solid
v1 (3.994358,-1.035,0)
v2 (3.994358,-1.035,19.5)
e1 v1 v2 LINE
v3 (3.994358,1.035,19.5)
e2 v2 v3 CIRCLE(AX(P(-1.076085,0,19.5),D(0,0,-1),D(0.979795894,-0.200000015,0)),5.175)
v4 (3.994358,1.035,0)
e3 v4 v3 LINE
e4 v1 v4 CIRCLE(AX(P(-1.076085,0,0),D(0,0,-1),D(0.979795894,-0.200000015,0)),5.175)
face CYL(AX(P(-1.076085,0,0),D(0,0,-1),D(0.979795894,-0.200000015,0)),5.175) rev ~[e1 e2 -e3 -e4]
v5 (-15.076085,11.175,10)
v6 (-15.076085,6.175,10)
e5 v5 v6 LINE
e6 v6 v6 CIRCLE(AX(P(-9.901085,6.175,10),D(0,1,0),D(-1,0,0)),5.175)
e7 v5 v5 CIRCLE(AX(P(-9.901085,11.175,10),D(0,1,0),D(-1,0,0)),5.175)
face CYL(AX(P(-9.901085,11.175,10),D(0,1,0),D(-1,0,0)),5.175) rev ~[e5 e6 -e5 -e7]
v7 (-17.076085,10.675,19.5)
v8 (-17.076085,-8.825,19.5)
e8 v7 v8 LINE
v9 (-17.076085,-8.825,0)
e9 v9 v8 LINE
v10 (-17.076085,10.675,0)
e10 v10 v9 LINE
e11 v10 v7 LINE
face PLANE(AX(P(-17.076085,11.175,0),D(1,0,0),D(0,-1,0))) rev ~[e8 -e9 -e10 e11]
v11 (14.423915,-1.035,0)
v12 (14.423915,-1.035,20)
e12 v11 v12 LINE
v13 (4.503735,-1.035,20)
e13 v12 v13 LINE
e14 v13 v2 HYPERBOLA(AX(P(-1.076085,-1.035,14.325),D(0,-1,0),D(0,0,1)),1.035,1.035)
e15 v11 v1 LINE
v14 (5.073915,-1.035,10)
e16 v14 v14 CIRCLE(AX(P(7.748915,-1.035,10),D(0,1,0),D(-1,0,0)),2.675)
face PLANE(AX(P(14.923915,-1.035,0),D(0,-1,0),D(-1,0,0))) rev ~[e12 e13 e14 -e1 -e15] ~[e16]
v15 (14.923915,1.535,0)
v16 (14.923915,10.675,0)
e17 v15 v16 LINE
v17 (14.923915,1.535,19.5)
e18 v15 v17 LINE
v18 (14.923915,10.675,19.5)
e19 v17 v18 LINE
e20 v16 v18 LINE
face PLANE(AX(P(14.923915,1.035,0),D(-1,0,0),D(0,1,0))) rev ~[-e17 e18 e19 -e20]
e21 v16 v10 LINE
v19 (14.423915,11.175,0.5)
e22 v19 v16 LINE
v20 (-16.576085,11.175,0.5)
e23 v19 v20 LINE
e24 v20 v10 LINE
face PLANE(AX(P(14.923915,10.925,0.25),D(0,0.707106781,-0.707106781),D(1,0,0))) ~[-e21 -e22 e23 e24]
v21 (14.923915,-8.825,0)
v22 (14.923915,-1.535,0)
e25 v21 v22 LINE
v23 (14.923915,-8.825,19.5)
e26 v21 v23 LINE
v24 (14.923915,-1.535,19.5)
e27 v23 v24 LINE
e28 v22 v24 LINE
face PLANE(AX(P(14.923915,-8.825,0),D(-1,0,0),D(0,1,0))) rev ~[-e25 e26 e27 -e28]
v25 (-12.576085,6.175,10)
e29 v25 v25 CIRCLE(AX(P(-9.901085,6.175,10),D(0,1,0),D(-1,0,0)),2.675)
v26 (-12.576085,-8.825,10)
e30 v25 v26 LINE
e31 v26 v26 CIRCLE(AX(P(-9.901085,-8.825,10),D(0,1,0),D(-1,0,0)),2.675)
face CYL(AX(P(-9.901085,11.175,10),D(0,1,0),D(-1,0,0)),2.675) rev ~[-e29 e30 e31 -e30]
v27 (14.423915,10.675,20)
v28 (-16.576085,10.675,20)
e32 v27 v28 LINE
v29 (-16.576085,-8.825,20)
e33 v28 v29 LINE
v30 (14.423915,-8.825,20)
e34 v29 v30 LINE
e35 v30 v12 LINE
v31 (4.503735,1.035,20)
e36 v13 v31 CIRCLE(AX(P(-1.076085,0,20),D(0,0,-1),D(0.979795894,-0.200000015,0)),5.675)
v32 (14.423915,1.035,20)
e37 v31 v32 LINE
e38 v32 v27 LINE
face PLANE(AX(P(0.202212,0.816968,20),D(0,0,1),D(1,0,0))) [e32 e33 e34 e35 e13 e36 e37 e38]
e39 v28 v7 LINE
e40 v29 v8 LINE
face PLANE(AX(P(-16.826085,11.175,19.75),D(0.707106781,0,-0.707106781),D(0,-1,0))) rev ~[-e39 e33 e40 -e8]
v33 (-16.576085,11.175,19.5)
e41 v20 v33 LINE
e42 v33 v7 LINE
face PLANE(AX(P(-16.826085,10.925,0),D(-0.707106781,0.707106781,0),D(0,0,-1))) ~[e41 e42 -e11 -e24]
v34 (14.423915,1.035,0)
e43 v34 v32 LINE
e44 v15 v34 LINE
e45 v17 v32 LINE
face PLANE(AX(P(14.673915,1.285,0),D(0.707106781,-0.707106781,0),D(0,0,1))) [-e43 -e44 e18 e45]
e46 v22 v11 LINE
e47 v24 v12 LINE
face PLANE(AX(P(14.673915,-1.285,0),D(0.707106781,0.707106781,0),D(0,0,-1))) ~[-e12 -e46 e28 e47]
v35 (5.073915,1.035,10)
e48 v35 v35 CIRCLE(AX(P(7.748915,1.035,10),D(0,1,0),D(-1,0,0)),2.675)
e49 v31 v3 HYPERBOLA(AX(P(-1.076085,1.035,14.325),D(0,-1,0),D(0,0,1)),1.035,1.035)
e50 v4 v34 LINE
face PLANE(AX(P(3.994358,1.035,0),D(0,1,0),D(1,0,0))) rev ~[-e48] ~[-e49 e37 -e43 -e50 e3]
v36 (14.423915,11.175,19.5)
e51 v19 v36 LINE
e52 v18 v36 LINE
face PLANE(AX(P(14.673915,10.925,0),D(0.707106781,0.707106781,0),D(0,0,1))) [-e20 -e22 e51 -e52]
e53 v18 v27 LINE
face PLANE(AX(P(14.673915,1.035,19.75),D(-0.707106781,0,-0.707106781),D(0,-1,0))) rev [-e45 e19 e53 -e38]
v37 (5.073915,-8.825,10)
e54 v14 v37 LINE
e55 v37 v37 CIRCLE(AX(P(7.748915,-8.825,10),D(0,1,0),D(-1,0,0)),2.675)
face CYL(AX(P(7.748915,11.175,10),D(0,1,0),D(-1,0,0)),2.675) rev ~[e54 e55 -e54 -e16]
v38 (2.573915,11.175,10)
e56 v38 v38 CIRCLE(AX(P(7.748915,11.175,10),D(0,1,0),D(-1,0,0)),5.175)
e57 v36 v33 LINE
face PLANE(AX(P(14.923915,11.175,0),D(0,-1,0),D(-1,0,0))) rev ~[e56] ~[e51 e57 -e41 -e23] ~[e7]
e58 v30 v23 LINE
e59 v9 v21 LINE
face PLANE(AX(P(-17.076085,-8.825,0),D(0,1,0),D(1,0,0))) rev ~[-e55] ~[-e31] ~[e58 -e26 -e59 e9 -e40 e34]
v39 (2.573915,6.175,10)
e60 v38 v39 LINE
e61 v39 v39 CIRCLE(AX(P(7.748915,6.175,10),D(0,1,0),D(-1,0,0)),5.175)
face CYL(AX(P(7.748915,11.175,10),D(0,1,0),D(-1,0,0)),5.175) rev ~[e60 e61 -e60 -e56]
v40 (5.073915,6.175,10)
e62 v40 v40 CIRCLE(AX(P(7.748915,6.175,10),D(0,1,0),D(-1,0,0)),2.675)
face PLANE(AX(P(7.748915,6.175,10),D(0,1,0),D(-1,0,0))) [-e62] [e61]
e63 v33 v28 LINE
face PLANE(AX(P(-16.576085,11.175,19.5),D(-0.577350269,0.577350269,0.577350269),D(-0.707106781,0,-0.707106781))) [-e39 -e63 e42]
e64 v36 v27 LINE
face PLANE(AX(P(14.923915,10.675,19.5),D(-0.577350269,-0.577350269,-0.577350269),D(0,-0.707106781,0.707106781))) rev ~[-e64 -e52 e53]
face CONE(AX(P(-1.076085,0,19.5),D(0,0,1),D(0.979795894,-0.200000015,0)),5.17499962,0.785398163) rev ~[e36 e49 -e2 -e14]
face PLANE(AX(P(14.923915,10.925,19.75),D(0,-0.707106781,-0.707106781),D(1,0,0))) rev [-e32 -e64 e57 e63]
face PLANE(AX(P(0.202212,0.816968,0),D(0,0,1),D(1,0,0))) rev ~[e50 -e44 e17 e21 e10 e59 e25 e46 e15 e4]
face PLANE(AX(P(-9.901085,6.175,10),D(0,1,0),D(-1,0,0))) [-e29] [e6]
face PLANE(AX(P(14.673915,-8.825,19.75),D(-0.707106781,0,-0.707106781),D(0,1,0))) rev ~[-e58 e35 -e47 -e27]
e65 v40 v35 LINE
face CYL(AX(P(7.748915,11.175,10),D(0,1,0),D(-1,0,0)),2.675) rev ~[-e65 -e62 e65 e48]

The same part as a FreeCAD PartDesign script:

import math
import FreeCAD as App
import Part
import Sketcher
Q = App.Units.Quantity


def edges_at(feature, points):
    """Names of the edges that pass closest to the given points."""
    edges = feature.Shape.Edges
    near = lambda p: min(range(len(edges)), key=lambda i: edges[i].distToShape(Part.Vertex(*p))[0])
    return sorted({f"Edge{near(p) + 1}" for p in points})

doc = App.newDocument("Part")
params = doc.addObject("Spreadsheet::Sheet", "Params")
for row, (alias, value) in enumerate([
    ("sketch1_width", "32 mm"),
    ("sketch1_height", "20 mm"),
    ("sketch1_height2", "7.79 mm"),
    ("sketch1_height3", "10.14 mm"),
    ("pad1_length", "20 mm"),
    ("sketch2_diameter", "5.35 mm"),
    ("pocket1_length", "20 mm"),
    ("sketch3_diameter", "10.35 mm"),
    ("sketch3_diameter2", "5.35 mm"),
    ("pocket2_length", "5 mm"),
    ("chamfer_size", "0.5 mm"),
], start=1):
    params.set(f"A{row}", alias)
    params.set(f"B{row}", "=" + value)
    params.setAlias(f"B{row}", alias)

body = doc.addObject("PartDesign::Body", "Body")

# Sketch on XY plane
sketch1 = doc.addObject("Sketcher::SketchObject", "Sketch")
body.addObject(sketch1)
sketch1.AttachmentSupport = (doc.XY_Plane, [""])
sketch1.MapMode = "FlatFace"
sketch1.addGeometry([
    Part.LineSegment(App.Vector(14.9, 11.2, 0), App.Vector(-17.1, 11.2, 0)),  # 0
    Part.LineSegment(App.Vector(-17.1, 11.2, 0), App.Vector(-17.1, -8.8, 0)),  # 1
    Part.LineSegment(App.Vector(-17.1, -8.8, 0), App.Vector(14.9, -8.8, 0)),  # 2
    Part.LineSegment(App.Vector(14.9, -8.8, 0), App.Vector(14.9, -1, 0)),  # 3
    Part.LineSegment(App.Vector(14.9, -1, 0), App.Vector(4, -1, 0)),  # 4
    Part.ArcOfCircle(Part.Circle(App.Vector(-1.1, 0, 0), App.Vector(0, 0, 1), 5.2), math.radians(12), math.radians(348)),  # 5
    Part.LineSegment(App.Vector(4, 1, 0), App.Vector(14.9, 1, 0)),  # 6
    Part.LineSegment(App.Vector(14.9, 1, 0), App.Vector(14.9, 11.2, 0)),  # 7
], False)
sketch1.addConstraint([
    Sketcher.Constraint("Coincident", 0, 2, 1, 1),
    Sketcher.Constraint("Coincident", 1, 2, 2, 1),
    Sketcher.Constraint("Coincident", 2, 2, 3, 1),
    Sketcher.Constraint("Coincident", 3, 2, 4, 1),
    Sketcher.Constraint("Coincident", 4, 2, 5, 2),
    Sketcher.Constraint("Coincident", 5, 1, 6, 1),
    Sketcher.Constraint("Coincident", 6, 2, 7, 1),
    Sketcher.Constraint("Coincident", 7, 2, 0, 1),
    Sketcher.Constraint("Horizontal", 0),
    Sketcher.Constraint("Vertical", 1),
    Sketcher.Constraint("Horizontal", 2),
    Sketcher.Constraint("Vertical", 3),
    Sketcher.Constraint("Horizontal", 4),
    Sketcher.Constraint("Horizontal", 6),
    Sketcher.Constraint("Vertical", 7),
    Sketcher.Constraint("Symmetric", 4, 2, 5, 1, -1),
    Sketcher.Constraint("Vertical", 3, 2, 6, 2),
    Sketcher.Constraint("DistanceX", 0, 2, 0, 1, Q("32 mm")),
    Sketcher.Constraint("DistanceY", 1, 2, 1, 1, Q("20 mm")),
    Sketcher.Constraint("Radius", 5, Q("5.175 mm")),
    Sketcher.Constraint("DistanceX", 0, 2, 5, 3, Q("16 mm")),
    Sketcher.Constraint("DistanceY", 3, 1, 3, 2, Q("7.79 mm")),
    Sketcher.Constraint("DistanceY", 7, 1, 7, 2, Q("10.14 mm")),
    Sketcher.Constraint("DistanceX", -1, 1, 4, 2, Q("3.994358 mm")),
])
sketch1.setExpression("Constraints[17]", "Params.sketch1_width")
sketch1.setExpression("Constraints[18]", "Params.sketch1_height")
sketch1.setExpression("Constraints[21]", "Params.sketch1_height2")
sketch1.setExpression("Constraints[22]", "Params.sketch1_height3")
pad1 = doc.addObject("PartDesign::Pad", "Pad")
body.addObject(pad1)
pad1.Profile = sketch1
pad1.setExpression("Length", "Params.pad1_length")

# Sketch on XZ plane
sketch2 = doc.addObject("Sketcher::SketchObject", "Sketch001")
body.addObject(sketch2)
sketch2.AttachmentSupport = (doc.XZ_Plane, [""])
sketch2.MapMode = "FlatFace"
sketch2.AttachmentOffset = App.Placement(App.Vector(0, 0, -11.175), App.Rotation())
sketch2.addGeometry([
    Part.Circle(App.Vector(7.7, 10, 0), App.Vector(0, 0, 1), 2.7),
    Part.Circle(App.Vector(-9.9, 10, 0), App.Vector(0, 0, 1), 2.7),
], False)
sketch2.addConstraint([
    Sketcher.Constraint("Equal", 0, 1),
    Sketcher.Constraint("Horizontal", 0, 3, 1, 3),
    Sketcher.Constraint("Diameter", 0, Q("5.35 mm")),
    Sketcher.Constraint("DistanceY", -1, 1, 0, 3, Q("10 mm")),
    Sketcher.Constraint("DistanceX", 1, 3, 0, 3, Q("17.65 mm")),
    Sketcher.Constraint("DistanceX", -1, 1, 0, 3, Q("7.748915 mm")),
])
sketch2.setExpression("Constraints[2]", "Params.sketch2_diameter")
pocket1 = doc.addObject("PartDesign::Pocket", "Pocket")
body.addObject(pocket1)
pocket1.Profile = sketch2
pocket1.setExpression("Length", "Params.pocket1_length")
pocket1.Reversed = True

# Sketch on XZ plane
sketch3 = doc.addObject("Sketcher::SketchObject", "Sketch002")
body.addObject(sketch3)
sketch3.AttachmentSupport = (doc.XZ_Plane, [""])
sketch3.MapMode = "FlatFace"
sketch3.AttachmentOffset = App.Placement(App.Vector(0, 0, -11.175), App.Rotation())
sketch3.addGeometry([
    Part.Circle(App.Vector(7.7, 10, 0), App.Vector(0, 0, 1), 5.2),
    Part.Circle(App.Vector(7.7, 10, 0), App.Vector(0, 0, 1), 2.7),
    Part.Circle(App.Vector(-9.9, 10, 0), App.Vector(0, 0, 1), 5.2),
    Part.Circle(App.Vector(-9.9, 10, 0), App.Vector(0, 0, 1), 2.7),
], False)
sketch3.addConstraint([
    Sketcher.Constraint("Coincident", 1, 3, 0, 3),
    Sketcher.Constraint("Coincident", 3, 3, 2, 3),
    Sketcher.Constraint("Equal", 0, 2),
    Sketcher.Constraint("Equal", 1, 3),
    Sketcher.Constraint("Horizontal", 1, 3, 2, 3),
    Sketcher.Constraint("Diameter", 0, Q("10.35 mm")),
    Sketcher.Constraint("Diameter", 1, Q("5.35 mm")),
    Sketcher.Constraint("DistanceY", -1, 1, 0, 3, Q("10 mm")),
    Sketcher.Constraint("DistanceX", 2, 3, 0, 3, Q("17.65 mm")),
    Sketcher.Constraint("DistanceX", -1, 1, 0, 3, Q("7.748915 mm")),
])
sketch3.setExpression("Constraints[5]", "Params.sketch3_diameter")
sketch3.setExpression("Constraints[6]", "Params.sketch3_diameter2")
pocket2 = doc.addObject("PartDesign::Pocket", "Pocket001")
body.addObject(pocket2)
pocket2.Profile = sketch3
pocket2.setExpression("Length", "Params.pocket2_length")
pocket2.Reversed = True
doc.recompute()

chamfer = doc.addObject("PartDesign::Chamfer", "Chamfer")
body.addObject(chamfer)
chamfer.Base = (pocket2, edges_at(pocket2, [
    (14.924, -1.035, 10),
    (-17.076, 1.175, 20),
    (-1.076, 11.175, 20),
    (-17.076, 11.175, 10),
    (14.924, 11.175, 10),
    (14.924, 6.105, 20),
    (14.924, -4.93, 20),
    (-6.251, 0, 20),
    (14.924, 1.035, 10),
    (-1.076, 11.175, 0),
]))
chamfer.setExpression("Size", "Params.chamfer_size")

doc.recompute()
